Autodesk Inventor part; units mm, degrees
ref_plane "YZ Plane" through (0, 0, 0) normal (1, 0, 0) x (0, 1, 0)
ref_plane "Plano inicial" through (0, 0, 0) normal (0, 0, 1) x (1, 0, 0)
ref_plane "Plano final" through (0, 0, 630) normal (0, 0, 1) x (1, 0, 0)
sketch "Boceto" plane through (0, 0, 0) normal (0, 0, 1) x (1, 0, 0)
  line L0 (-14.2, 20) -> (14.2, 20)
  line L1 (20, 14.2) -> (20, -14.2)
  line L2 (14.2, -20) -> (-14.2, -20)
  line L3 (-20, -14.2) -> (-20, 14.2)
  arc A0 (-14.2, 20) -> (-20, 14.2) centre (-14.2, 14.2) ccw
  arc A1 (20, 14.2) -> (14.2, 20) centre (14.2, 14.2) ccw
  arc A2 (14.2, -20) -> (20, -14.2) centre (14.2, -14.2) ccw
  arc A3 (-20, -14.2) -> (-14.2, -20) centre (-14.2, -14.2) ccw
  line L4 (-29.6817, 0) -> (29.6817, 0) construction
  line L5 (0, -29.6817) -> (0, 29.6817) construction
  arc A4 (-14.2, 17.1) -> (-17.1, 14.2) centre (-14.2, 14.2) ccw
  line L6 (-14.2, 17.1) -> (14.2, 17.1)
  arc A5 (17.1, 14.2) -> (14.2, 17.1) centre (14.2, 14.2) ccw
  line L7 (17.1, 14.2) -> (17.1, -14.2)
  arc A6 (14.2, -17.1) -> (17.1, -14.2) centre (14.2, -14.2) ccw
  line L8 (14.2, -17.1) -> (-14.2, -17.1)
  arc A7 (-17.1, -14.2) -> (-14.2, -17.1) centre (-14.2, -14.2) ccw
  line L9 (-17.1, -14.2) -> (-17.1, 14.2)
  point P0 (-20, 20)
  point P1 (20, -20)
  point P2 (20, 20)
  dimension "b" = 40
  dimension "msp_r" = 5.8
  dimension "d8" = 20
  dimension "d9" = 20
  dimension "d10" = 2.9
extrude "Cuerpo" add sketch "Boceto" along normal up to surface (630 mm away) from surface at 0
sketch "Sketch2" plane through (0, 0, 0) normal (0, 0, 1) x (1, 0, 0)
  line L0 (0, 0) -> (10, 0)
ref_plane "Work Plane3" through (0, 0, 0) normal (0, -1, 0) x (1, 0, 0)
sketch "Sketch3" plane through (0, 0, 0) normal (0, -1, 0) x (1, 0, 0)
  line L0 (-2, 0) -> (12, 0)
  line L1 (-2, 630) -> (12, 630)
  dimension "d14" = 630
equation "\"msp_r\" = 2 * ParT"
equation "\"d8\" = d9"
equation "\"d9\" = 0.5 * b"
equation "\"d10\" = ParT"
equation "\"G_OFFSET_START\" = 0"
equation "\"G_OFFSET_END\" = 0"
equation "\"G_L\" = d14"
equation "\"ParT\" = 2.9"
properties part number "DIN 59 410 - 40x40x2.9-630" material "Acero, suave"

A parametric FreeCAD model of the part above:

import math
import FreeCAD as App
import Part
import Sketcher

doc = App.newDocument("Part")
body = doc.addObject("PartDesign::Body", "Body")

# Sketch on XY plane
sketch1 = doc.addObject("Sketcher::SketchObject", "Sketch")
body.addObject(sketch1)
sketch1.AttachmentSupport = (doc.XY_Plane, [""])
sketch1.MapMode = "FlatFace"
sketch1.addGeometry(Part.LineSegment(App.Vector(14.2, 20, 0), App.Vector(-14.2, 20, 0)), False)
sketch1.addGeometry(Part.ArcOfCircle(Part.Circle(App.Vector(-14.2, 14.2, 0), App.Vector(0, 0, 1), 5.8), math.radians(90), math.radians(180)), False)
sketch1.addGeometry(Part.LineSegment(App.Vector(-20, 14.2, 0), App.Vector(-20, -14.2, 0)), False)
sketch1.addGeometry(Part.ArcOfCircle(Part.Circle(App.Vector(-14.2, -14.2, 0), App.Vector(0, 0, 1), 5.8), math.radians(180), math.radians(270)), False)
sketch1.addGeometry(Part.LineSegment(App.Vector(-14.2, -20, 0), App.Vector(14.2, -20, 0)), False)
sketch1.addGeometry(Part.ArcOfCircle(Part.Circle(App.Vector(14.2, -14.2, 0), App.Vector(0, 0, 1), 5.8), math.radians(-90), math.radians(0)), False)
sketch1.addGeometry(Part.LineSegment(App.Vector(20, -14.2, 0), App.Vector(20, 14.2, 0)), False)
sketch1.addGeometry(Part.ArcOfCircle(Part.Circle(App.Vector(14.2, 14.2, 0), App.Vector(0, 0, 1), 5.8), math.radians(0), math.radians(90)), False)
sketch1.addGeometry(Part.ArcOfCircle(Part.Circle(App.Vector(-14.2, 14.2, 0), App.Vector(0, 0, 1), 2.9), math.radians(90), math.radians(180)), False)
sketch1.addGeometry(Part.LineSegment(App.Vector(-14.2, 17.1, 0), App.Vector(14.2, 17.1, 0)), False)
sketch1.addGeometry(Part.ArcOfCircle(Part.Circle(App.Vector(14.2, 14.2, 0), App.Vector(0, 0, 1), 2.9), math.radians(0), math.radians(90)), False)
sketch1.addGeometry(Part.LineSegment(App.Vector(17.1, 14.2, 0), App.Vector(17.1, -14.2, 0)), False)
sketch1.addGeometry(Part.ArcOfCircle(Part.Circle(App.Vector(14.2, -14.2, 0), App.Vector(0, 0, 1), 2.9), math.radians(-90), math.radians(0)), False)
sketch1.addGeometry(Part.LineSegment(App.Vector(14.2, -17.1, 0), App.Vector(-14.2, -17.1, 0)), False)
sketch1.addGeometry(Part.ArcOfCircle(Part.Circle(App.Vector(-14.2, -14.2, 0), App.Vector(0, 0, 1), 2.9), math.radians(180), math.radians(270)), False)
sketch1.addGeometry(Part.LineSegment(App.Vector(-17.1, -14.2, 0), App.Vector(-17.1, 14.2, 0)), False)
sketch1.addConstraint(Sketcher.Constraint("Tangent", 0, 2, 1, 1))
sketch1.addConstraint(Sketcher.Constraint("Tangent", 1, 2, 2, 1))
sketch1.addConstraint(Sketcher.Constraint("Tangent", 2, 2, 3, 1))
sketch1.addConstraint(Sketcher.Constraint("Tangent", 3, 2, 4, 1))
sketch1.addConstraint(Sketcher.Constraint("Tangent", 4, 2, 5, 1))
sketch1.addConstraint(Sketcher.Constraint("Tangent", 5, 2, 6, 1))
sketch1.addConstraint(Sketcher.Constraint("Tangent", 6, 2, 7, 1))
sketch1.addConstraint(Sketcher.Constraint("Tangent", 7, 2, 0, 1))
sketch1.addConstraint(Sketcher.Constraint("Tangent", 8, 1, 9, 1))
sketch1.addConstraint(Sketcher.Constraint("Tangent", 9, 2, 10, 2))
sketch1.addConstraint(Sketcher.Constraint("Tangent", 10, 1, 11, 1))
sketch1.addConstraint(Sketcher.Constraint("Tangent", 11, 2, 12, 2))
sketch1.addConstraint(Sketcher.Constraint("Tangent", 12, 1, 13, 1))
sketch1.addConstraint(Sketcher.Constraint("Tangent", 13, 2, 14, 2))
sketch1.addConstraint(Sketcher.Constraint("Tangent", 14, 1, 15, 1))
sketch1.addConstraint(Sketcher.Constraint("Tangent", 15, 2, 8, 2))
sketch1.addConstraint(Sketcher.Constraint("Horizontal", 0))
sketch1.addConstraint(Sketcher.Constraint("Vertical", 2))
sketch1.addConstraint(Sketcher.Constraint("Horizontal", 4))
sketch1.addConstraint(Sketcher.Constraint("Vertical", 6))
sketch1.addConstraint(Sketcher.Constraint("Horizontal", 9))
sketch1.addConstraint(Sketcher.Constraint("Vertical", 11))
sketch1.addConstraint(Sketcher.Constraint("Horizontal", 13))
sketch1.addConstraint(Sketcher.Constraint("Vertical", 15))
sketch1.addConstraint(Sketcher.Constraint("Coincident", 8, 3, 1, 3))
sketch1.addConstraint(Sketcher.Constraint("Coincident", 10, 3, 7, 3))
sketch1.addConstraint(Sketcher.Constraint("Coincident", 12, 3, 5, 3))
sketch1.addConstraint(Sketcher.Constraint("Equal", 1, 3))
sketch1.addConstraint(Sketcher.Constraint("Equal", 3, 5))
sketch1.addConstraint(Sketcher.Constraint("Equal", 5, 7))
sketch1.addConstraint(Sketcher.Constraint("Equal", 12, 14))
sketch1.addConstraint(Sketcher.Constraint("Symmetric", 1, 3, 5, 3, -1, 1))
sketch1.addConstraint(Sketcher.Constraint("Equal", 13, 2))
sketch1.addConstraint(Sketcher.Constraint("Radius", 1, 5.8))
sketch1.addConstraint(Sketcher.Constraint("Radius", 8, 2.9))
sketch1.addConstraint(Sketcher.Constraint("DistanceY", -1, 1, 0, 2, 20.0))
pad1 = doc.addObject("PartDesign::Pad", "Pad")
body.addObject(pad1)
pad1.Profile = sketch1
pad1.Length = 630

doc.recompute()
